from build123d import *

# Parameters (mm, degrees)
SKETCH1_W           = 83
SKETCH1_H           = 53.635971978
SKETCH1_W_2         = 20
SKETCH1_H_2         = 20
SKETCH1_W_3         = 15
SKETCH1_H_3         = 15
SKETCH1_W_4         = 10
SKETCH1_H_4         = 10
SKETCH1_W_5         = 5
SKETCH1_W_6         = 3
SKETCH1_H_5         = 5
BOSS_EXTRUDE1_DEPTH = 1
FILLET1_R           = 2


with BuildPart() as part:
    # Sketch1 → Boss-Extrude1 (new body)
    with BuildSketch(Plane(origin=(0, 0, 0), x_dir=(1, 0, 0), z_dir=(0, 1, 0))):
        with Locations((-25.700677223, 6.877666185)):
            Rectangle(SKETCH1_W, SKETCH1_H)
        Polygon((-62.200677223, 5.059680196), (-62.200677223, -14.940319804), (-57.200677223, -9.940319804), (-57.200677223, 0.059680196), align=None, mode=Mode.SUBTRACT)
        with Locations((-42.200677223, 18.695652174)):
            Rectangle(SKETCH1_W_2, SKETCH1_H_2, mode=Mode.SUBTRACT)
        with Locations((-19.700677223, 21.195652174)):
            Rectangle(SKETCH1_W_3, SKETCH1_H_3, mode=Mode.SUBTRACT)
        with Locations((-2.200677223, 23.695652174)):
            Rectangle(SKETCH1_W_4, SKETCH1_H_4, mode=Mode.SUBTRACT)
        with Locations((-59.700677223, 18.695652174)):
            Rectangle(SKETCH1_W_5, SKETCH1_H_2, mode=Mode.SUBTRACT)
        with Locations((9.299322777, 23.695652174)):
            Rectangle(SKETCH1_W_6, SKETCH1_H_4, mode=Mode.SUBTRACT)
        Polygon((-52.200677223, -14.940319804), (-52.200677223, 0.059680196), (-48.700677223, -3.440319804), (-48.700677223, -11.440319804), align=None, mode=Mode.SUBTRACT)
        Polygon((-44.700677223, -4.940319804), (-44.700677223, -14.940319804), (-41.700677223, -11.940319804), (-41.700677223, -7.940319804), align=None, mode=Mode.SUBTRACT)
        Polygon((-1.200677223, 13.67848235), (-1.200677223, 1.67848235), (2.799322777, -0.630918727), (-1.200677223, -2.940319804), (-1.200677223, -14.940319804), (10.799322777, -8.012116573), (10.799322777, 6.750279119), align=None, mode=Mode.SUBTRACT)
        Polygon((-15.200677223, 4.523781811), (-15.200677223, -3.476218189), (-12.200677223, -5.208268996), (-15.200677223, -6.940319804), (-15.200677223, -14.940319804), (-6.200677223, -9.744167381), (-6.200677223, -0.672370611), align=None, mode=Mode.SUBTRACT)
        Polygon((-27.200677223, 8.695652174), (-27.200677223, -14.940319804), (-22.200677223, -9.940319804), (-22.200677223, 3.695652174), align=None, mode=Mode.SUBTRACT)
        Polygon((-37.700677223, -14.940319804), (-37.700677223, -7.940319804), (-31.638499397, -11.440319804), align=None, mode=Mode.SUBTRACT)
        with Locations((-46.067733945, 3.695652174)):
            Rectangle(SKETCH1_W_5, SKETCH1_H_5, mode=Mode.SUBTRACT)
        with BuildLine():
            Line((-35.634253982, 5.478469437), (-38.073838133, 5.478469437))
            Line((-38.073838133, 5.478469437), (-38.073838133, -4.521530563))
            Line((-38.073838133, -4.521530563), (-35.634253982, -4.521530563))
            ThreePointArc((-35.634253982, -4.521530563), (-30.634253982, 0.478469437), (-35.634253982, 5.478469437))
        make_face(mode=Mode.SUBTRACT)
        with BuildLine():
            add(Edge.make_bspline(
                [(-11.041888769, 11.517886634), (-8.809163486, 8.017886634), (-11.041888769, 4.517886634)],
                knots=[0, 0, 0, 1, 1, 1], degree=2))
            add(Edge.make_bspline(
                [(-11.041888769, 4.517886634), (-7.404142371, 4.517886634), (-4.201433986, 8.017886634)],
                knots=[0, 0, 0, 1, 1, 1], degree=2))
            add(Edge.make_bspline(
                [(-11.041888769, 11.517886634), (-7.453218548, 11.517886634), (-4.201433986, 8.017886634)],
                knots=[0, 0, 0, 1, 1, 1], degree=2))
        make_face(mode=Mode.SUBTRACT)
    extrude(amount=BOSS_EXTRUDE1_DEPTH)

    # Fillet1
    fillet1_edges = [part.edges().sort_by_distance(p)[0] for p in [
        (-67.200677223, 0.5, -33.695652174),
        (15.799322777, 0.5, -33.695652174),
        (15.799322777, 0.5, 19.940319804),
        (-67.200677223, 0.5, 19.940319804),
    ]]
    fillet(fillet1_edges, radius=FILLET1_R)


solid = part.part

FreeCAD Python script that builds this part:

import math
import FreeCAD as App
import Part
import Sketcher
from FreeCAD import Vector
Q = App.Units.Quantity


def edges_at(feature, points):
    """Names of the edges that pass closest to the given points."""
    edges = feature.Shape.Edges
    near = lambda p: min(range(len(edges)), key=lambda i: edges[i].distToShape(Part.Vertex(*p))[0])
    return sorted({f"Edge{near(p) + 1}" for p in points})


def add_polygon(sketch, points):
    """Adds a closed chain of lines whose ends are joined by coincident constraints."""
    first, n = sketch.GeometryCount, len(points)
    for a, b in zip(points, points[1:] + points[:1]):
        sketch.addGeometry(Part.LineSegment(App.Vector(*a, 0), App.Vector(*b, 0)), False)
    for i in range(n):
        sketch.addConstraint(Sketcher.Constraint("Coincident", first + i, 2, first + (i + 1) % n, 1))

doc = App.newDocument("Part")
body = doc.addObject("PartDesign::Body", "Body")

# Sketch on XZ plane
sketch1 = body.newObject("Sketcher::SketchObject", "Sketch")
sketch1.AttachmentSupport = (doc.getObject("XZ_Plane"), [""])
sketch1.MapMode = "FlatFace"
add_polygon(sketch1, [(-67.200677, -33.695652), (-67.200677, 19.94032), (15.799323, 19.94032), (15.799323, -33.695652)])  # lines 0-3
add_polygon(sketch1, [(-62.200677, 14.94032), (-62.200677, -5.05968), (-57.200677, -0.05968), (-57.200677, 9.94032)])  # lines 4-7
add_polygon(sketch1, [(-48.700677, 11.44032), (-52.200677, 14.94032), (-52.200677, -0.05968), (-48.700677, 3.44032)])  # lines 8-11
add_polygon(sketch1, [(-44.700677, 14.94032), (-44.700677, 4.94032), (-41.700677, 7.94032), (-41.700677, 11.94032)])  # lines 12-15
add_polygon(sketch1, [(-31.638499, 11.44032), (-37.700677, 14.94032), (-37.700677, 7.94032)])  # lines 16-18
add_polygon(sketch1, [(-43.567734, -1.195652), (-48.567734, -1.195652), (-48.567734, -6.195652), (-43.567734, -6.195652)])  # lines 19-22
sketch1.addGeometry(Part.LineSegment(Vector(-38.073838, -5.478469, 0), Vector(-35.634254, -5.478469, 0)), False)  # 23
sketch1.addGeometry(Part.ArcOfCircle(Part.Circle(Vector(-35.634254, -0.478469, 0), Vector(0, 0, 1), 5), math.radians(-90), math.radians(90)), False)  # 24
sketch1.addGeometry(Part.LineSegment(Vector(-35.634254, 4.521531, 0), Vector(-38.073838, 4.521531, 0)), False)  # 25
sketch1.addGeometry(Part.LineSegment(Vector(-38.073838, 4.521531, 0), Vector(-38.073838, -5.478469, 0)), False)  # 26
add_polygon(sketch1, [(-15.200677, 3.476218), (-15.200677, -4.523782), (-6.200677, 0.672371), (-6.200677, 9.744167), (-15.200677, 14.94032), (-15.200677, 6.94032), (-12.200677, 5.208269)])  # lines 27-33
add_polygon(sketch1, [(-27.200677, 14.94032), (-27.200677, -8.695652), (-22.200677, -3.695652), (-22.200677, 9.94032)])  # lines 34-37
add_polygon(sketch1, [(-1.200677, -1.678482), (-1.200677, -13.678482), (10.799323, -6.750279), (10.799323, 8.012117), (-1.200677, 14.94032), (-1.200677, 2.94032), (2.799323, 0.630919)])  # lines 38-44
add_polygon(sketch1, [(-57.200677, -8.695652), (-62.200677, -8.695652), (-62.200677, -28.695652), (-57.200677, -28.695652)])  # lines 45-48
add_polygon(sketch1, [(-32.200677, -8.695652), (-52.200677, -8.695652), (-52.200677, -28.695652), (-32.200677, -28.695652)])  # lines 49-52
sketch1.addGeometry(Part.BSplineCurve([Vector(-11.041889, -11.517887, 0), Vector(-8.809163, -8.017887, 0), Vector(-11.041889, -4.517887, 0)], [3, 3], [0, 1], False, 2, [1, 1, 1], False), False)  # 53
sketch1.addGeometry(Part.BSplineCurve([Vector(-11.041889, -11.517887, 0), Vector(-7.453219, -11.517887, 0), Vector(-4.201434, -8.017887, 0)], [3, 3], [0, 1], False, 2, [1, 1, 1], False), False)  # 54
sketch1.addGeometry(Part.BSplineCurve([Vector(-11.041889, -4.517887, 0), Vector(-7.404142, -4.517887, 0), Vector(-4.201434, -8.017887, 0)], [3, 3], [0, 1], False, 2, [1, 1, 1], False), False)  # 55
add_polygon(sketch1, [(-12.200677, -13.695652), (-27.200677, -13.695652), (-27.200677, -28.695652), (-12.200677, -28.695652)])  # lines 56-59
add_polygon(sketch1, [(2.799323, -18.695652), (-7.200677, -18.695652), (-7.200677, -28.695652), (2.799323, -28.695652)])  # lines 60-63
add_polygon(sketch1, [(10.799323, -18.695652), (7.799323, -18.695652), (7.799323, -28.695652), (10.799323, -28.695652)])  # lines 64-67
sketch1.addConstraint(Sketcher.Constraint("Block", 53))
sketch1.addConstraint(Sketcher.Constraint("Block", 54))
sketch1.addConstraint(Sketcher.Constraint("Block", 55))
sketch1.addConstraint(Sketcher.Constraint("Tangent", 23, 2, 24, 1))
sketch1.addConstraint(Sketcher.Constraint("Tangent", 24, 2, 25, 1))
sketch1.addConstraint(Sketcher.Constraint("Coincident", 25, 2, 26, 1))
sketch1.addConstraint(Sketcher.Constraint("Coincident", 26, 2, 23, 1))
sketch1.addConstraint(Sketcher.Constraint("Vertical", 0))
sketch1.addConstraint(Sketcher.Constraint("Horizontal", 1))
sketch1.addConstraint(Sketcher.Constraint("Vertical", 2))
sketch1.addConstraint(Sketcher.Constraint("Horizontal", 3))
sketch1.addConstraint(Sketcher.Constraint("Vertical", 4))
sketch1.addConstraint(Sketcher.Constraint("Vertical", 6))
sketch1.addConstraint(Sketcher.Constraint("Vertical", 9))
sketch1.addConstraint(Sketcher.Constraint("Vertical", 11))
sketch1.addConstraint(Sketcher.Constraint("Vertical", 12))
sketch1.addConstraint(Sketcher.Constraint("Vertical", 14))
sketch1.addConstraint(Sketcher.Constraint("Vertical", 17))
sketch1.addConstraint(Sketcher.Constraint("Horizontal", 19))
sketch1.addConstraint(Sketcher.Constraint("Vertical", 20))
sketch1.addConstraint(Sketcher.Constraint("Horizontal", 21))
sketch1.addConstraint(Sketcher.Constraint("Vertical", 22))
sketch1.addConstraint(Sketcher.Constraint("Horizontal", 23))
sketch1.addConstraint(Sketcher.Constraint("Horizontal", 25))
sketch1.addConstraint(Sketcher.Constraint("Vertical", 26))
sketch1.addConstraint(Sketcher.Constraint("Vertical", 27))
sketch1.addConstraint(Sketcher.Constraint("Vertical", 29))
sketch1.addConstraint(Sketcher.Constraint("Vertical", 31))
sketch1.addConstraint(Sketcher.Constraint("Vertical", 34))
sketch1.addConstraint(Sketcher.Constraint("Vertical", 36))
sketch1.addConstraint(Sketcher.Constraint("Vertical", 38))
sketch1.addConstraint(Sketcher.Constraint("Vertical", 40))
sketch1.addConstraint(Sketcher.Constraint("Vertical", 42))
sketch1.addConstraint(Sketcher.Constraint("Horizontal", 45))
sketch1.addConstraint(Sketcher.Constraint("Vertical", 46))
sketch1.addConstraint(Sketcher.Constraint("Horizontal", 47))
sketch1.addConstraint(Sketcher.Constraint("Vertical", 48))
sketch1.addConstraint(Sketcher.Constraint("Horizontal", 49))
sketch1.addConstraint(Sketcher.Constraint("Vertical", 50))
sketch1.addConstraint(Sketcher.Constraint("Horizontal", 51))
sketch1.addConstraint(Sketcher.Constraint("Vertical", 52))
sketch1.addConstraint(Sketcher.Constraint("Horizontal", 56))
sketch1.addConstraint(Sketcher.Constraint("Vertical", 57))
sketch1.addConstraint(Sketcher.Constraint("Horizontal", 58))
sketch1.addConstraint(Sketcher.Constraint("Vertical", 59))
sketch1.addConstraint(Sketcher.Constraint("Horizontal", 60))
sketch1.addConstraint(Sketcher.Constraint("Vertical", 61))
sketch1.addConstraint(Sketcher.Constraint("Horizontal", 62))
sketch1.addConstraint(Sketcher.Constraint("Vertical", 63))
sketch1.addConstraint(Sketcher.Constraint("Horizontal", 64))
sketch1.addConstraint(Sketcher.Constraint("Vertical", 65))
sketch1.addConstraint(Sketcher.Constraint("Horizontal", 66))
sketch1.addConstraint(Sketcher.Constraint("Vertical", 67))
sketch1.addConstraint(Sketcher.Constraint("Perpendicular", 5, 7))
sketch1.addConstraint(Sketcher.Constraint("Parallel", 7, 8))
sketch1.addConstraint(Sketcher.Constraint("Perpendicular", 8, 10))
sketch1.addConstraint(Sketcher.Constraint("Parallel", 10, 13))
sketch1.addConstraint(Sketcher.Constraint("Perpendicular", 13, 15))
sketch1.addConstraint(Sketcher.Constraint("Parallel", 18, 28))
sketch1.addConstraint(Sketcher.Constraint("Parallel", 16, 30))
sketch1.addConstraint(Sketcher.Constraint("Parallel", 30, 32))
sketch1.addConstraint(Sketcher.Constraint("Parallel", 28, 33))
sketch1.addConstraint(Sketcher.Constraint("Perpendicular", 15, 35))
sketch1.addConstraint(Sketcher.Constraint("Perpendicular", 35, 37))
sketch1.addConstraint(Sketcher.Constraint("Parallel", 33, 39))
sketch1.addConstraint(Sketcher.Constraint("Parallel", 32, 41))
sketch1.addConstraint(Sketcher.Constraint("Parallel", 41, 43))
sketch1.addConstraint(Sketcher.Constraint("Parallel", 39, 44))
sketch1.addConstraint(Sketcher.Constraint("Horizontal", 7, 2, 8, 2))
sketch1.addConstraint(Sketcher.Constraint("Horizontal", 5, 2, 9, 2))
sketch1.addConstraint(Sketcher.Constraint("Horizontal", 8, 2, 15, 2))
sketch1.addConstraint(Sketcher.Constraint("Horizontal", 15, 2, 16, 2))
sketch1.addConstraint(Sketcher.Constraint("Horizontal", 13, 2, 17, 2))
sketch1.addConstraint(Sketcher.Constraint("Horizontal", 11, 2, 18, 2))
sketch1.addConstraint(Sketcher.Constraint("Horizontal", 16, 2, 30, 2))
sketch1.addConstraint(Sketcher.Constraint("Horizontal", 6, 2, 36, 2))
sketch1.addConstraint(Sketcher.Constraint("Horizontal", 30, 2, 37, 2))
sketch1.addConstraint(Sketcher.Constraint("Horizontal", 37, 2, 41, 2))
sketch1.addConstraint(Sketcher.Constraint("Horizontal", 34, 2, 45, 2))
sketch1.addConstraint(Sketcher.Constraint("Horizontal", 48, 2, 49, 2))
sketch1.addConstraint(Sketcher.Constraint("Horizontal", 47, 2, 50, 2))
sketch1.addConstraint(Sketcher.Constraint("Horizontal", 51, 2, 57, 2))
sketch1.addConstraint(Sketcher.Constraint("Horizontal", 58, 2, 61, 2))
sketch1.addConstraint(Sketcher.Constraint("Horizontal", 63, 2, 64, 2))
sketch1.addConstraint(Sketcher.Constraint("Horizontal", 62, 2, 65, 2))
sketch1.addConstraint(Sketcher.Constraint("Vertical", 27, 2, 30, 2))
sketch1.addConstraint(Sketcher.Constraint("Vertical", 38, 2, 41, 2))
sketch1.addConstraint(Sketcher.Constraint("Vertical", 7, 2, 45, 2))
sketch1.addConstraint(Sketcher.Constraint("Vertical", 6, 2, 47, 2))
sketch1.addConstraint(Sketcher.Constraint("Vertical", 9, 2, 49, 2))
sketch1.addConstraint(Sketcher.Constraint("Vertical", 37, 2, 56, 2))
sketch1.addConstraint(Sketcher.Constraint("Vertical", 32, 2, 58, 2))
sketch1.addConstraint(Sketcher.Constraint("Vertical", 43, 2, 62, 2))
sketch1.addConstraint(Sketcher.Constraint("Vertical", 40, 2, 66, 2))
sketch1.addConstraint(Sketcher.Constraint("Equal", 21, 45))
sketch1.addConstraint(Sketcher.Constraint("Equal", 51, 4))
sketch1.addConstraint(Sketcher.Constraint("Equal", 62, 6))
sketch1.addConstraint(Sketcher.Constraint("Equal", 58, 9))
sketch1.addConstraint(Sketcher.Constraint("Equal", 6, 12))
sketch1.addConstraint(Sketcher.Constraint("Equal", 47, 20))
sketch1.addConstraint(Sketcher.Constraint("Equal", 12, 26))
sketch1.addConstraint(Sketcher.Constraint("Equal", 11, 27))
sketch1.addConstraint(Sketcher.Constraint("Equal", 27, 31))
sketch1.addConstraint(Sketcher.Constraint("Equal", 38, 42))
sketch1.addConstraint(Sketcher.Constraint("Equal", 4, 46))
sketch1.addConstraint(Sketcher.Constraint("Equal", 9, 57))
sketch1.addConstraint(Sketcher.Constraint("Equal", 26, 61))
sketch1.addConstraint(Sketcher.Constraint("Equal", 5, 7))
sketch1.addConstraint(Sketcher.Constraint("Equal", 16, 18))
sketch1.addConstraint(Sketcher.Constraint("Radius", 24, 5.0))
sketch1.addConstraint(Sketcher.Constraint("DistanceX", 1, 1, 1, 2, 83.0))
sketch1.addConstraint(Sketcher.Constraint("DistanceX", 19, 2, 19, 1, 5.0))
sketch1.addConstraint(Sketcher.Constraint("DistanceX", 64, 2, 64, 1, 3.0))
sketch1.addConstraint(Sketcher.Constraint("DistanceY", 11, 1, 11, 2, 8.0))
sketch1.addConstraint(Sketcher.Constraint("DistanceY", 38, 2, 38, 1, 12.0))
sketch1.addConstraint(Sketcher.Constraint("Angle", 16, Q("150 deg")))
sketch1.addConstraint(Sketcher.Constraint("Distance", 32, 3.464102))
sketch1.addConstraint(Sketcher.Constraint("DistanceY", 0, 1, 0, 2, 53.635972))
sketch1.addConstraint(Sketcher.Constraint("DistanceY", 34, 2, 34, 1, 23.635972))
sketch1.addConstraint(Sketcher.Constraint("DistanceX", 18, 2, -1, 1, 31.638499))
sketch1.addConstraint(Sketcher.Constraint("DistanceX", 23, 1, 23, 2, 2.439584))
sketch1.addConstraint(Sketcher.Constraint("DistanceY", 29, 1, 29, 2, 9.071797))
sketch1.addConstraint(Sketcher.Constraint("DistanceY", 40, 1, 40, 2, 14.762396))
sketch1.addConstraint(Sketcher.Constraint("DistanceY", 24, 3, -1, 1, 0.478469))
sketch1.addConstraint(Sketcher.Constraint("DistanceY", -1, 1, 0, 2, 19.94032))
sketch1.addConstraint(Sketcher.Constraint("DistanceY", 4, 2, -1, 1, 5.05968))
sketch1.addConstraint(Sketcher.Constraint("DistanceX", 25, 2, -1, 1, 38.073838))
sketch1.addConstraint(Sketcher.Constraint("DistanceY", 39, 2, -1, 1, 6.750279))
sketch1.addConstraint(Sketcher.Constraint("DistanceX", 0, 2, -1, 1, 67.200677))
sketch1.addConstraint(Sketcher.Constraint("DistanceX", 4, 2, -1, 1, 62.200677))
sketch1.addConstraint(Sketcher.Constraint("DistanceX", 8, 2, -1, 1, 52.200677))
sketch1.addConstraint(Sketcher.Constraint("DistanceX", 12, 2, -1, 1, 44.700677))
sketch1.addConstraint(Sketcher.Constraint("DistanceX", 19, 2, -1, 1, 48.567734))
sketch1.addConstraint(Sketcher.Constraint("DistanceY", 19, 2, -1, 1, 1.195652))
sketch1.addConstraint(Sketcher.Constraint("DistanceX", 27, 2, -1, 1, 15.200677))
sketch1.addConstraint(Sketcher.Constraint("DistanceX", 38, 2, -1, 1, 1.200677))
pad1 = body.newObject("PartDesign::Pad", "Pad")
pad1.Profile = sketch1
pad1.Length = 1
pad1.Reversed = True
doc.recompute()

fillet = body.newObject("PartDesign::Fillet", "Fillet")
fillet.Base = (pad1, edges_at(pad1, [
    (-67.201, 0.5, -33.696),
    (15.799, 0.5, -33.696),
    (15.799, 0.5, 19.94),
    (-67.201, 0.5, 19.94),
]))
fillet.Radius = 2

doc.recompute()
